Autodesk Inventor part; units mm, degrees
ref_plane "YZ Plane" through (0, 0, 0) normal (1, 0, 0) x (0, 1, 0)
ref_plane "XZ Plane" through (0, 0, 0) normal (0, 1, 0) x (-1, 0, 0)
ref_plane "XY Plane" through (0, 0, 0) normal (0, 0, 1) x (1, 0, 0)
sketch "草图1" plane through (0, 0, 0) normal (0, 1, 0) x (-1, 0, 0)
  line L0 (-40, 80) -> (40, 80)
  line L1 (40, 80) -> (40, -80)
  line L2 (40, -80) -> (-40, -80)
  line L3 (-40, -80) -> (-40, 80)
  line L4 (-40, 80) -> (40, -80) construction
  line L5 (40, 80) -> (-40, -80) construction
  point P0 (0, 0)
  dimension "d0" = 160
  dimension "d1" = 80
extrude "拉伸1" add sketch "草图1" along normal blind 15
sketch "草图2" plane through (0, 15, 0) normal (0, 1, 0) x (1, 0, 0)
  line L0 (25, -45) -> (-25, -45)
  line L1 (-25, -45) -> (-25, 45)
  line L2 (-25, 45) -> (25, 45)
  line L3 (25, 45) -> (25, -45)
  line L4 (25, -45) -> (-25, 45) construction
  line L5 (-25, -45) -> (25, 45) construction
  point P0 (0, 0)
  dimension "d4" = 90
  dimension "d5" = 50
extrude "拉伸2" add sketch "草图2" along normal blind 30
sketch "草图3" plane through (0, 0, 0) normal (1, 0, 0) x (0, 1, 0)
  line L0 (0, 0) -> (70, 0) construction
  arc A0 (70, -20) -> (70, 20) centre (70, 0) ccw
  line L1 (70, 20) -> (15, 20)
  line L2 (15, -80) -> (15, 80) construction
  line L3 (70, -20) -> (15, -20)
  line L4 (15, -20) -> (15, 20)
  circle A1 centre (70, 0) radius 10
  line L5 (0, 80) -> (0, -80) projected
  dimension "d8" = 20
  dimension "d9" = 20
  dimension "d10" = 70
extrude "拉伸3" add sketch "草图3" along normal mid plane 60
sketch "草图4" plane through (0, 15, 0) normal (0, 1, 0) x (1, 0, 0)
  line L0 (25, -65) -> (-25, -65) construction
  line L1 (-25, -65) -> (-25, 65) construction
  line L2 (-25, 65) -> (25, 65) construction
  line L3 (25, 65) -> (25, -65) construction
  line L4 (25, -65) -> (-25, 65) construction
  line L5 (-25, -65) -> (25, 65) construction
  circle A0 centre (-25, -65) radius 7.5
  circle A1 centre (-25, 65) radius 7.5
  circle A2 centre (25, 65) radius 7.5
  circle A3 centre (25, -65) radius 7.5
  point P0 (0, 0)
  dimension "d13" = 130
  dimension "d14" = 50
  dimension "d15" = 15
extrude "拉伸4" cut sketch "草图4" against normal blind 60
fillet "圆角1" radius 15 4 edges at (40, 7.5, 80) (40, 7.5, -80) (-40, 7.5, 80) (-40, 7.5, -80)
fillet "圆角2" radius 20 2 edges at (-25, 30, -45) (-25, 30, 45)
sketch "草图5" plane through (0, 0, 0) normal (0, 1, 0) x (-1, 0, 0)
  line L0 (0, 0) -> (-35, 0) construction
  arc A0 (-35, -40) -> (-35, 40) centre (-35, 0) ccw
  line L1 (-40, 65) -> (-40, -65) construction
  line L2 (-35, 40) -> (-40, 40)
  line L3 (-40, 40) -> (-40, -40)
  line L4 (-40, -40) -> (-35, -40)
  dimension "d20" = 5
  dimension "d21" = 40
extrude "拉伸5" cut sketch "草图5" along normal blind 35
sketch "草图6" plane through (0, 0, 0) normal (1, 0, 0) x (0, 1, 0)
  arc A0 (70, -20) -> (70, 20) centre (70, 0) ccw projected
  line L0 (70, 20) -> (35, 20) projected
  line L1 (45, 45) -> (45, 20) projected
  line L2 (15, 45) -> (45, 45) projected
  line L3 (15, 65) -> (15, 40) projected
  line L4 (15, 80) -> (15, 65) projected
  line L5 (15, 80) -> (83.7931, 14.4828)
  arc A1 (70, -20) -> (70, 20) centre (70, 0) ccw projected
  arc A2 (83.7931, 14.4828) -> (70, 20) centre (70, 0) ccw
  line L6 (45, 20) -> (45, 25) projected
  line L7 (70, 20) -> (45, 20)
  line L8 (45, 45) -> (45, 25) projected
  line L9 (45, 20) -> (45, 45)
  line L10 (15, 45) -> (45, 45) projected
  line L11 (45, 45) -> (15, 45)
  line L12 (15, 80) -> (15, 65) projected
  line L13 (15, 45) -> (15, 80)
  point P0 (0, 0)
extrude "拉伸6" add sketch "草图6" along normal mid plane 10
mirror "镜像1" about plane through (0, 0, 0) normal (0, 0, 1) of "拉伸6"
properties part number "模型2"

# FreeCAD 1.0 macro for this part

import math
import FreeCAD as App
import Part
import Sketcher

V = App.Vector


def edges_at(feature, points):
    """Names of the edges that pass closest to the given points."""
    edges = feature.Shape.Edges
    near = lambda p: min(range(len(edges)), key=lambda i: edges[i].distToShape(Part.Vertex(*p))[0])
    return sorted({f"Edge{near(p) + 1}" for p in points})


def add_polygon(sketch, points):
    """Adds a closed chain of lines whose ends are joined by coincident constraints."""
    first, n = sketch.GeometryCount, len(points)
    for a, b in zip(points, points[1:] + points[:1]):
        sketch.addGeometry(Part.LineSegment(App.Vector(*a, 0), App.Vector(*b, 0)), False)
    for i in range(n):
        sketch.addConstraint(Sketcher.Constraint("Coincident", first + i, 2, first + (i + 1) % n, 1))

doc = App.newDocument("Part")
body = doc.addObject("PartDesign::Body", "Body")

# Sketch on XZ plane
sketch1 = doc.addObject("Sketcher::SketchObject", "Sketch")
body.addObject(sketch1)
sketch1.AttachmentSupport = (doc.XZ_Plane, [""])
sketch1.MapMode = "FlatFace"
add_polygon(sketch1, [(-40, 80), (40, 80), (40, -80), (-40, -80)])  # lines 0-3
sketch1.addConstraint([
    Sketcher.Constraint("Horizontal", 0),
    Sketcher.Constraint("Vertical", 1),
    Sketcher.Constraint("Horizontal", 2),
    Sketcher.Constraint("Vertical", 3),
    Sketcher.Constraint("Symmetric", 0, 2, 2, 2, -1, 1),
    Sketcher.Constraint("DistanceX", 0, 1, 0, 2, 80.0),
    Sketcher.Constraint("DistanceY", 1, 2, 1, 1, 160.0),
])
pad1 = doc.addObject("PartDesign::Pad", "Pad")
body.addObject(pad1)
pad1.Profile = sketch1
pad1.Length = 15
pad1.Reversed = True

# Sketch on XZ plane
sketch2 = doc.addObject("Sketcher::SketchObject", "Sketch001")
body.addObject(sketch2)
sketch2.AttachmentSupport = (doc.XZ_Plane, [""])
sketch2.MapMode = "FlatFace"
sketch2.AttachmentOffset = App.Placement(V(0, 0, -15), App.Rotation())
add_polygon(sketch2, [(-25, 45), (25, 45), (25, -45), (-25, -45)])  # lines 0-3
sketch2.addConstraint([
    Sketcher.Constraint("Horizontal", 0),
    Sketcher.Constraint("Vertical", 1),
    Sketcher.Constraint("Horizontal", 2),
    Sketcher.Constraint("Vertical", 3),
    Sketcher.Constraint("Symmetric", 0, 2, 2, 2, -1, 1),
    Sketcher.Constraint("DistanceX", 0, 1, 0, 2, 50.0),
    Sketcher.Constraint("DistanceY", 1, 2, 1, 1, 90.0),
])
pad2 = doc.addObject("PartDesign::Pad", "Pad001")
body.addObject(pad2)
pad2.Profile = sketch2
pad2.Length = 30
pad2.Reversed = True

# Sketch on YZ plane
sketch3 = doc.addObject("Sketcher::SketchObject", "Sketch002")
body.addObject(sketch3)
sketch3.AttachmentSupport = (doc.YZ_Plane, [""])
sketch3.MapMode = "FlatFace"
sketch3.addGeometry([
    Part.LineSegment(V(15, -20, 0), V(70, -20, 0)),  # 0
    Part.ArcOfCircle(Part.Circle(V(70, 0, 0), V(0, 0, 1), 20), math.radians(-90), math.radians(90)),  # 1
    Part.LineSegment(V(70, 20, 0), V(15, 20, 0)),  # 2
    Part.LineSegment(V(15, 20, 0), V(15, -20, 0)),  # 3
    Part.Circle(V(70, 0, 0), V(0, 0, 1), 10),  # 4
], False)
sketch3.addConstraint([
    Sketcher.Constraint("Tangent", 0, 2, 1, 1),
    Sketcher.Constraint("Tangent", 1, 2, 2, 1),
    Sketcher.Constraint("Coincident", 2, 2, 3, 1),
    Sketcher.Constraint("Coincident", 3, 2, 0, 1),
    Sketcher.Constraint("Horizontal", 0),
    Sketcher.Constraint("Horizontal", 2),
    Sketcher.Constraint("Vertical", 3),
    Sketcher.Constraint("Coincident", 4, 3, 1, 3),
    Sketcher.Constraint("PointOnObject", 1, 3, -1),
    Sketcher.Constraint("Diameter", 4, 20.0),
    Sketcher.Constraint("Radius", 1, 20.0),
    Sketcher.Constraint("DistanceX", -1, 1, 1, 3, 70.0),
    Sketcher.Constraint("DistanceX", 0, 1, 0, 2, 55.0),
])
pad3 = doc.addObject("PartDesign::Pad", "Pad002")
body.addObject(pad3)
pad3.Profile = sketch3
pad3.Length = 60
pad3.Midplane = True

# Sketch on XZ plane
sketch4 = doc.addObject("Sketcher::SketchObject", "Sketch003")
body.addObject(sketch4)
sketch4.AttachmentSupport = (doc.XZ_Plane, [""])
sketch4.MapMode = "FlatFace"
sketch4.AttachmentOffset = App.Placement(V(0, 0, -15), App.Rotation())
sketch4.addGeometry([
    Part.Circle(V(-25, 65, 0), V(0, 0, 1), 8),
    Part.Circle(V(-25, -65, 0), V(0, 0, 1), 8),
    Part.Circle(V(25, -65, 0), V(0, 0, 1), 8),
    Part.Circle(V(25, 65, 0), V(0, 0, 1), 8),
], False)
sketch4.addConstraint([
    Sketcher.Constraint("Equal", 0, 1),
    Sketcher.Constraint("Equal", 1, 2),
    Sketcher.Constraint("Equal", 2, 3),
    Sketcher.Constraint("Symmetric", 0, 3, 2, 3, -1, 1),
    Sketcher.Constraint("Symmetric", 1, 3, 3, 3, -1, 1),
    Sketcher.Constraint("Symmetric", 1, 3, 2, 3, -2),
    Sketcher.Constraint("Diameter", 0, 15.0),
    Sketcher.Constraint("DistanceY", 1, 3, 0, 3, 130.0),
    Sketcher.Constraint("DistanceX", 1, 3, 2, 3, 50.0),
])
pocket1 = doc.addObject("PartDesign::Pocket", "Pocket")
body.addObject(pocket1)
pocket1.Profile = sketch4
pocket1.Length = 60
pocket1.Reversed = True
doc.recompute()

fillet = doc.addObject("PartDesign::Fillet", "Fillet")
body.addObject(fillet)
fillet.Base = (pocket1, edges_at(pocket1, [
    (40, 7.5, 80),
    (40, 7.5, -80),
    (-40, 7.5, 80),
    (-40, 7.5, -80),
]))
fillet.Radius = 15
doc.recompute()

fillet2 = doc.addObject("PartDesign::Fillet", "Fillet001")
body.addObject(fillet2)
fillet2.Base = (fillet, edges_at(fillet, [(-25, 30, -45), (-25, 30, 45)]))
fillet2.Radius = 20

# Sketch on XZ plane
sketch5 = doc.addObject("Sketcher::SketchObject", "Sketch004")
body.addObject(sketch5)
sketch5.AttachmentSupport = (doc.XZ_Plane, [""])
sketch5.MapMode = "FlatFace"
sketch5.addGeometry([
    Part.LineSegment(V(40, -40, 0), V(35, -40, 0)),
    Part.ArcOfCircle(Part.Circle(V(35, 0, 0), V(0, 0, 1), 40), math.radians(90), math.radians(270)),
    Part.LineSegment(V(35, 40, 0), V(40, 40, 0)),
    Part.LineSegment(V(40, 40, 0), V(40, -40, 0)),
], False)
sketch5.addConstraint([
    Sketcher.Constraint("Tangent", 0, 2, 1, 2),
    Sketcher.Constraint("Tangent", 1, 1, 2, 1),
    Sketcher.Constraint("Coincident", 2, 2, 3, 1),
    Sketcher.Constraint("Coincident", 3, 2, 0, 1),
    Sketcher.Constraint("Horizontal", 0),
    Sketcher.Constraint("Horizontal", 2),
    Sketcher.Constraint("Vertical", 3),
    Sketcher.Constraint("PointOnObject", 1, 3, -1),
    Sketcher.Constraint("Radius", 1, 40.0),
    Sketcher.Constraint("DistanceX", 0, 2, 0, 1, 5.0),
    Sketcher.Constraint("DistanceX", -1, 1, 2, 2, 40.0),
])
pocket2 = doc.addObject("PartDesign::Pocket", "Pocket001")
body.addObject(pocket2)
pocket2.Profile = sketch5
pocket2.Length = 35

# Sketch on YZ plane
sketch6 = doc.addObject("Sketcher::SketchObject", "Sketch005")
body.addObject(sketch6)
sketch6.AttachmentSupport = (doc.YZ_Plane, [""])
sketch6.MapMode = "FlatFace"
sketch6.addGeometry([
    Part.ArcOfCircle(Part.Circle(V(70, 0, 0), V(0, 0, 1), 20), math.radians(46), math.radians(90)),  # 0
    Part.LineSegment(V(84, 14, 0), V(15, 80, 0)),  # 1
    Part.LineSegment(V(15, 80, 0), V(15, 45, 0)),  # 2
    Part.LineSegment(V(15, 45, 0), V(45, 45, 0)),  # 3
    Part.LineSegment(V(45, 45, 0), V(45, 20, 0)),  # 4
    Part.LineSegment(V(45, 20, 0), V(70, 20, 0)),  # 5
], False)
sketch6.addConstraint([
    Sketcher.Constraint("Tangent", 0, 1, 1, 1),
    Sketcher.Constraint("Coincident", 1, 2, 2, 1),
    Sketcher.Constraint("Coincident", 2, 2, 3, 1),
    Sketcher.Constraint("Coincident", 3, 2, 4, 1),
    Sketcher.Constraint("Coincident", 4, 2, 5, 1),
    Sketcher.Constraint("Tangent", 5, 2, 0, 2),
    Sketcher.Constraint("Vertical", 2),
    Sketcher.Constraint("Horizontal", 3),
    Sketcher.Constraint("Vertical", 4),
    Sketcher.Constraint("Horizontal", 5),
    Sketcher.Constraint("PointOnObject", 0, 3, -1),
    Sketcher.Constraint("Equal", 5, 4),
    Sketcher.Constraint("Radius", 0, 20.0),
    Sketcher.Constraint("DistanceX", 3, 1, 3, 2, 30.0),
    Sketcher.Constraint("DistanceX", 5, 1, 5, 2, 25.0),
    Sketcher.Constraint("DistanceY", 2, 2, 2, 1, 35.0),
    Sketcher.Constraint("DistanceX", -1, 1, 0, 3, 70.0),
])
pad4 = doc.addObject("PartDesign::Pad", "Pad003")
body.addObject(pad4)
pad4.Profile = sketch6
pad4.Length = 10
pad4.Midplane = True
doc.recompute()

mirrored = doc.addObject("PartDesign::Mirrored", "Mirrored")
body.addObject(mirrored)
mirrored.Originals = [pad4]
mirrored.MirrorPlane = (doc.XY_Plane, [""])
body.Tip = mirrored

doc.recompute()
